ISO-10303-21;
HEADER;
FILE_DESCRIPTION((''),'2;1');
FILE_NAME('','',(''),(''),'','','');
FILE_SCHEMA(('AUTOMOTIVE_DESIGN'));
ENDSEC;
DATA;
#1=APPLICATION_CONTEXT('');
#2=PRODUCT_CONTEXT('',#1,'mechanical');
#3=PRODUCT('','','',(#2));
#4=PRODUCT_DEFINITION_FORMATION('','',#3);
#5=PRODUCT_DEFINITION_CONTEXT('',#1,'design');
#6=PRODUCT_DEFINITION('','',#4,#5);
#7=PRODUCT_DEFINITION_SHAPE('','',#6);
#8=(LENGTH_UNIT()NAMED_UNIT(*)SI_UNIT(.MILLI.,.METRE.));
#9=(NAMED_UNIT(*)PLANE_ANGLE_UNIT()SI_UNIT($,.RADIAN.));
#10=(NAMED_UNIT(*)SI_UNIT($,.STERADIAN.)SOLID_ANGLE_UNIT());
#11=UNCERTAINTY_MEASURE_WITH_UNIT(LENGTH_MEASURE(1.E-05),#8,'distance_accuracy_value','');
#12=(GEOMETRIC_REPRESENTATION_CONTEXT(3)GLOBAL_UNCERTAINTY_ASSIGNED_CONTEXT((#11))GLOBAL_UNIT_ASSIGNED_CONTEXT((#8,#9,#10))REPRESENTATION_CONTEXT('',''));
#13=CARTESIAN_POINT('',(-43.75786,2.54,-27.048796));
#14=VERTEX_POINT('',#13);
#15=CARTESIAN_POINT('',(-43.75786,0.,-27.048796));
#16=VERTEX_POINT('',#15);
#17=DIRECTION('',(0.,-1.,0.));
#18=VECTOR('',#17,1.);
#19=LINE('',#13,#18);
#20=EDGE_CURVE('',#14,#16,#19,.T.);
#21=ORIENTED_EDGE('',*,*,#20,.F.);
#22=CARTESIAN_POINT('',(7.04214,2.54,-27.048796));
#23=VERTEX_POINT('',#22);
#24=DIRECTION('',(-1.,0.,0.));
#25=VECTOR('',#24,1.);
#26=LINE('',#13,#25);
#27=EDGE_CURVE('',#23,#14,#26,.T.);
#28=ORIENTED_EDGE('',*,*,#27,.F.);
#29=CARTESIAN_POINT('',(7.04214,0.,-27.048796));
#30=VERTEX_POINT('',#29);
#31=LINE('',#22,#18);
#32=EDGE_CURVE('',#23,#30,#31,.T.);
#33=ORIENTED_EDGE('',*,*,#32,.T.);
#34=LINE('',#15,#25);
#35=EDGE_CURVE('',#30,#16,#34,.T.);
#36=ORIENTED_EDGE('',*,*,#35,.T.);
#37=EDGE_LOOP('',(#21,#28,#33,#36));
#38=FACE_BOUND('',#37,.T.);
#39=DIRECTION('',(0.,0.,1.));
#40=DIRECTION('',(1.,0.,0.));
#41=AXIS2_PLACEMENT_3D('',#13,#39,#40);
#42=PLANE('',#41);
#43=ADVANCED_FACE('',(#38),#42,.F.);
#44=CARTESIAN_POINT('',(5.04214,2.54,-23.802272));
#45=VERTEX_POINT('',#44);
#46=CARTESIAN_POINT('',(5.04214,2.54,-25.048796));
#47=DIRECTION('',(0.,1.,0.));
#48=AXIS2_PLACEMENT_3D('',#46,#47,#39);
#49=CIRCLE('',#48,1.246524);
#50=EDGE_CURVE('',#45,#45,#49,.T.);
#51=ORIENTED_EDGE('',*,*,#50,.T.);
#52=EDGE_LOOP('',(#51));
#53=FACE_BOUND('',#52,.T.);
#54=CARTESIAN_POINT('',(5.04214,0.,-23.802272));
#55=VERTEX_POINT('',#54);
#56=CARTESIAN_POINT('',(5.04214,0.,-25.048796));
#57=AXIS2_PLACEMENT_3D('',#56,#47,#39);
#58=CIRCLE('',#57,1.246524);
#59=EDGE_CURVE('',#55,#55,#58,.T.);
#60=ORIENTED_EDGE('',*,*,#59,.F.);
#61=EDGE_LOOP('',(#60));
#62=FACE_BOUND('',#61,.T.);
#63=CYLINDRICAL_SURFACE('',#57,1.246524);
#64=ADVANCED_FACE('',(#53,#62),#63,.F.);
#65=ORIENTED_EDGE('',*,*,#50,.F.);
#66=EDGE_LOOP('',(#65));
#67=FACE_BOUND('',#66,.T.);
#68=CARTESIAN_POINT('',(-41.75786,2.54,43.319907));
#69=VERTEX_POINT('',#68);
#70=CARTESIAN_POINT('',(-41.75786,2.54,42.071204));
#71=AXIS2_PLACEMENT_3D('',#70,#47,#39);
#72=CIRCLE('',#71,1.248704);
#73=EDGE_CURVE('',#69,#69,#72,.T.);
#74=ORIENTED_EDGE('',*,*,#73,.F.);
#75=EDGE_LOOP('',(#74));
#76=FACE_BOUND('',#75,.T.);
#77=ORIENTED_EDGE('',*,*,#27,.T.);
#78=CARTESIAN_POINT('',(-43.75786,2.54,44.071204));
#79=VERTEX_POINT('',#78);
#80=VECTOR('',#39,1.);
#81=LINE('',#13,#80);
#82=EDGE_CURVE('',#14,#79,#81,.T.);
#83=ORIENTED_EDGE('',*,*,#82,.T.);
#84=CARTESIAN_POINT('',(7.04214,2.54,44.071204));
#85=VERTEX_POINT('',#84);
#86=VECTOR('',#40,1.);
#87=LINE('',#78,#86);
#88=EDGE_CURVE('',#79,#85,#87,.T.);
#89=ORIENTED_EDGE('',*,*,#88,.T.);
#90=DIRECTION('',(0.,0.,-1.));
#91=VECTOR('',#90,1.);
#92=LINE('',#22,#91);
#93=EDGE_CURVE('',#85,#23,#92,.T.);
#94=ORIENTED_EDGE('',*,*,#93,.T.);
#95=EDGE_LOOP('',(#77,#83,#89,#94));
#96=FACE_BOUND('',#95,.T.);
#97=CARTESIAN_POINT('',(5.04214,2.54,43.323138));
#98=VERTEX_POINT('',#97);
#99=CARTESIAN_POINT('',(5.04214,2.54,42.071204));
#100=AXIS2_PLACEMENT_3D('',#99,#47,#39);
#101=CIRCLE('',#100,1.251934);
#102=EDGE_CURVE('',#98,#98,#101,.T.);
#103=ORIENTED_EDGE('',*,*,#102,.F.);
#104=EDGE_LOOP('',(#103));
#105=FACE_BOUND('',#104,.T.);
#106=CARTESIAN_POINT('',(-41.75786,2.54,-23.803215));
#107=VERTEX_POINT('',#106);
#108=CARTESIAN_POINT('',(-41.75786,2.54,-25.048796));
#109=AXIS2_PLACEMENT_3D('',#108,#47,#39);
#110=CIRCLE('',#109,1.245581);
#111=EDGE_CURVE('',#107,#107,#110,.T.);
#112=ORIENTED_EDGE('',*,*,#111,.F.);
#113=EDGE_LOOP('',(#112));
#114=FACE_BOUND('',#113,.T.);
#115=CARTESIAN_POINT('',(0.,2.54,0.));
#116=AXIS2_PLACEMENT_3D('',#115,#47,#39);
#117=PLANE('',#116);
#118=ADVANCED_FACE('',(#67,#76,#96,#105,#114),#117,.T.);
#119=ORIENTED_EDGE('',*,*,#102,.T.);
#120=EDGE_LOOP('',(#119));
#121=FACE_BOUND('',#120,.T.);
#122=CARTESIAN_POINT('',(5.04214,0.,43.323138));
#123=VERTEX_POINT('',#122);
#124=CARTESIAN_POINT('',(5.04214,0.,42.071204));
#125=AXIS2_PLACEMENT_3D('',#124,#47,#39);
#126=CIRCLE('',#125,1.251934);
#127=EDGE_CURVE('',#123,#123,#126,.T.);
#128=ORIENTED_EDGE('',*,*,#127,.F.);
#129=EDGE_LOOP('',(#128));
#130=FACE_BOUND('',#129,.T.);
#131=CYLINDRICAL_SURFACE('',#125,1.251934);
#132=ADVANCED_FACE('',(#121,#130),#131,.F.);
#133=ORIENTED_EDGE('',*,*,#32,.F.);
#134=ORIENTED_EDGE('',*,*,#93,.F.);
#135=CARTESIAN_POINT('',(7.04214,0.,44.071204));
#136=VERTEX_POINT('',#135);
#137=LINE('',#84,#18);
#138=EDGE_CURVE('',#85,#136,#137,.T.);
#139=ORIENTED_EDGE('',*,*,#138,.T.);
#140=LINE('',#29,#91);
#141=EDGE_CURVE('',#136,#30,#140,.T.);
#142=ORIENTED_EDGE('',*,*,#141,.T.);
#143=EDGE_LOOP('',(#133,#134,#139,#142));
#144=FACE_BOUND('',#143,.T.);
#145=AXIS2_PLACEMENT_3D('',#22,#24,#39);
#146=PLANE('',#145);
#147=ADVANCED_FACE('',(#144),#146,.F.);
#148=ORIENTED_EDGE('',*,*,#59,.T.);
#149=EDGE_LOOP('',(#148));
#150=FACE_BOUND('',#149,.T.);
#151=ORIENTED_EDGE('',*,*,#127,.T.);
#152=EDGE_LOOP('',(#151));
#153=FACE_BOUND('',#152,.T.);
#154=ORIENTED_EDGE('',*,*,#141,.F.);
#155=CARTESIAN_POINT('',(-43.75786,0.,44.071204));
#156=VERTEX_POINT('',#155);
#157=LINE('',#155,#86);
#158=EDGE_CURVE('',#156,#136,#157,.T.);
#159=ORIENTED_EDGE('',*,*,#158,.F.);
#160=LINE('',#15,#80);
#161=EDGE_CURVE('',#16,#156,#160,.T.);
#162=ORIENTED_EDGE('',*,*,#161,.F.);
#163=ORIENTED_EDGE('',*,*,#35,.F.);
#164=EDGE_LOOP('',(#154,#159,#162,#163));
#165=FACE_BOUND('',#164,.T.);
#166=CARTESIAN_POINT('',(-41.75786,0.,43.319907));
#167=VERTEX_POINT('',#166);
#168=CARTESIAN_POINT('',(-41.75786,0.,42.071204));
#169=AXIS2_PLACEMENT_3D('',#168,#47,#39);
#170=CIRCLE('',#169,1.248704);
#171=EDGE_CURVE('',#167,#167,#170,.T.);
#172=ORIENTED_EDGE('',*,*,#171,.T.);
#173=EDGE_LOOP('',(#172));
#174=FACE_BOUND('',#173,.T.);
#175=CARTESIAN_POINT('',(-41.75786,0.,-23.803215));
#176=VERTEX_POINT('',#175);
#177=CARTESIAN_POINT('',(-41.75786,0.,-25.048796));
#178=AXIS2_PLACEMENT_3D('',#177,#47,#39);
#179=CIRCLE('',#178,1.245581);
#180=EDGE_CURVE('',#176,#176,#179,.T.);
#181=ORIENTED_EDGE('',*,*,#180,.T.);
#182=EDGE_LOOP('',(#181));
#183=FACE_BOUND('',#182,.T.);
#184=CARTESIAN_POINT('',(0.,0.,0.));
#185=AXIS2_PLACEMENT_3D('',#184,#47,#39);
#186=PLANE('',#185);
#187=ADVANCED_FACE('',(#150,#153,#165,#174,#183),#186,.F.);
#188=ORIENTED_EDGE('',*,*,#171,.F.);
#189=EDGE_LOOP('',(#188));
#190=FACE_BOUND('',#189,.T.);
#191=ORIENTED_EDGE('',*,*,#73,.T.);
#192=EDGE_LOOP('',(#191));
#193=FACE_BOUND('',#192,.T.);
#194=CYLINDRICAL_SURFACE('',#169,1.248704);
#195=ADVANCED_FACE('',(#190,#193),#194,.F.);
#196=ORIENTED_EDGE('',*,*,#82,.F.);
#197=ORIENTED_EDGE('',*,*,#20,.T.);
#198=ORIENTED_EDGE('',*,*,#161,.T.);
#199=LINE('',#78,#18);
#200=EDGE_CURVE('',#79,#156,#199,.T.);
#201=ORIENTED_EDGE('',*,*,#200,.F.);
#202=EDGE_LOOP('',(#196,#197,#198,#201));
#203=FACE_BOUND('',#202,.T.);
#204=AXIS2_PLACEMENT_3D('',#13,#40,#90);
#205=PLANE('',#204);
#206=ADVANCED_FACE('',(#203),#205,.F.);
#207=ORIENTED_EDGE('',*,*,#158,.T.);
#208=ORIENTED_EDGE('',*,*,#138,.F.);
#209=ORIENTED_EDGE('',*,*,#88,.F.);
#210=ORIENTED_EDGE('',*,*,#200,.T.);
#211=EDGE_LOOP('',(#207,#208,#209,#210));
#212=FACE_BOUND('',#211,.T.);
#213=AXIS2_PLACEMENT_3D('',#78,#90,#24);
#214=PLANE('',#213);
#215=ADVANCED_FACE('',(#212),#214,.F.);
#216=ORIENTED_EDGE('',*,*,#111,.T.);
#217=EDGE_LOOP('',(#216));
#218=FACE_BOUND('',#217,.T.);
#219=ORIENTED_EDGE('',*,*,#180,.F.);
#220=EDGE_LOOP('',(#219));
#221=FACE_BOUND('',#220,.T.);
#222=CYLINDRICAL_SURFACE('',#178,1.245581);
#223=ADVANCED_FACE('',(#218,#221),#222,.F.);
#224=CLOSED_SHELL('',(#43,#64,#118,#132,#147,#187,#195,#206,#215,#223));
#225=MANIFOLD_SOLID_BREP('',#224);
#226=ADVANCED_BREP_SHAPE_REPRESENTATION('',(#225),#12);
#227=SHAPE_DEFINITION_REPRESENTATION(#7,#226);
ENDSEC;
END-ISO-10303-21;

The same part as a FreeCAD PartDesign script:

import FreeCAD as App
import Part
import Sketcher
Q = App.Units.Quantity


def add_polygon(sketch, points):
    """Adds a closed chain of lines whose ends are joined by coincident constraints."""
    first, n = sketch.GeometryCount, len(points)
    for a, b in zip(points, points[1:] + points[:1]):
        sketch.addGeometry(Part.LineSegment(App.Vector(*a, 0), App.Vector(*b, 0)), False)
    for i in range(n):
        sketch.addConstraint(Sketcher.Constraint("Coincident", first + i, 2, first + (i + 1) % n, 1))

doc = App.newDocument("Part")
body = doc.addObject("PartDesign::Body", "Body")

sketch1 = body.newObject("Sketcher::SketchObject", "Sketch")
sketch1.AttachmentSupport = (doc.getObject("XZ_Plane"), [""])
sketch1.MapMode = "FlatFace"
add_polygon(sketch1, [(-44, -27), (-44, 44), (7, 44), (7, -27)])
sketch1.addConstraint([
    Sketcher.Constraint("Vertical", 0),
    Sketcher.Constraint("Horizontal", 1),
    Sketcher.Constraint("Vertical", 2),
    Sketcher.Constraint("Horizontal", 3),
    Sketcher.Constraint("DistanceX", 1, 1, 1, 2, Q("2 in")),
    Sketcher.Constraint("DistanceY", 0, 1, 0, 2, Q("2.8 in")),
    Sketcher.Constraint("DistanceX", 0, 2, -1, 1, 43.75786),
    Sketcher.Constraint("DistanceY", -1, 1, 0, 2, 44.071204),
])
pad1 = body.newObject("PartDesign::Pad", "Pad")
pad1.Profile = sketch1
pad1.Length = Q("0.1 in")
pad1.Reversed = True

sketch2 = body.newObject("Sketcher::SketchObject", "Sketch001")
sketch2.AttachmentSupport = (doc.getObject("XZ_Plane"), [""])
sketch2.MapMode = "FlatFace"
sketch2.AttachmentOffset = App.Placement(App.Vector(0, 0, -0.1 * 25.4), App.Rotation())
sketch2.addGeometry([
    Part.Circle(App.Vector(-41.8, -25, 0), App.Vector(0, 0, 1), 1.2),
    Part.Circle(App.Vector(5, -25, 0), App.Vector(0, 0, 1), 1.2),
    Part.Circle(App.Vector(-41.8, 42.1, 0), App.Vector(0, 0, 1), 1.2),
    Part.Circle(App.Vector(5, 42.1, 0), App.Vector(0, 0, 1), 1.3),
], False)
sketch2.addConstraint([
    Sketcher.Constraint("Horizontal", 0, 3, 1, 3),
    Sketcher.Constraint("Horizontal", 2, 3, 3, 3),
    Sketcher.Constraint("Vertical", 0, 3, 2, 3),
    Sketcher.Constraint("Vertical", 1, 3, 3, 3),
    Sketcher.Constraint("Diameter", 3, 2.503869),
    Sketcher.Constraint("Diameter", 0, 2.491163),
    Sketcher.Constraint("Diameter", 1, 2.493048),
    Sketcher.Constraint("Diameter", 2, 2.497407),
    Sketcher.Constraint("DistanceX", 0, 3, 1, 3, 46.8),
    Sketcher.Constraint("DistanceY", 0, 3, 2, 3, 67.12),
    Sketcher.Constraint("DistanceX", 0, 3, -1, 1, 41.75786),
    Sketcher.Constraint("DistanceY", 0, 3, -1, 1, 25.048796),
])
pocket1 = body.newObject("PartDesign::Pocket", "Pocket")
pocket1.Profile = sketch2
pocket1.Type = "ThroughAll"
pocket1.Reversed = True

doc.recompute()
